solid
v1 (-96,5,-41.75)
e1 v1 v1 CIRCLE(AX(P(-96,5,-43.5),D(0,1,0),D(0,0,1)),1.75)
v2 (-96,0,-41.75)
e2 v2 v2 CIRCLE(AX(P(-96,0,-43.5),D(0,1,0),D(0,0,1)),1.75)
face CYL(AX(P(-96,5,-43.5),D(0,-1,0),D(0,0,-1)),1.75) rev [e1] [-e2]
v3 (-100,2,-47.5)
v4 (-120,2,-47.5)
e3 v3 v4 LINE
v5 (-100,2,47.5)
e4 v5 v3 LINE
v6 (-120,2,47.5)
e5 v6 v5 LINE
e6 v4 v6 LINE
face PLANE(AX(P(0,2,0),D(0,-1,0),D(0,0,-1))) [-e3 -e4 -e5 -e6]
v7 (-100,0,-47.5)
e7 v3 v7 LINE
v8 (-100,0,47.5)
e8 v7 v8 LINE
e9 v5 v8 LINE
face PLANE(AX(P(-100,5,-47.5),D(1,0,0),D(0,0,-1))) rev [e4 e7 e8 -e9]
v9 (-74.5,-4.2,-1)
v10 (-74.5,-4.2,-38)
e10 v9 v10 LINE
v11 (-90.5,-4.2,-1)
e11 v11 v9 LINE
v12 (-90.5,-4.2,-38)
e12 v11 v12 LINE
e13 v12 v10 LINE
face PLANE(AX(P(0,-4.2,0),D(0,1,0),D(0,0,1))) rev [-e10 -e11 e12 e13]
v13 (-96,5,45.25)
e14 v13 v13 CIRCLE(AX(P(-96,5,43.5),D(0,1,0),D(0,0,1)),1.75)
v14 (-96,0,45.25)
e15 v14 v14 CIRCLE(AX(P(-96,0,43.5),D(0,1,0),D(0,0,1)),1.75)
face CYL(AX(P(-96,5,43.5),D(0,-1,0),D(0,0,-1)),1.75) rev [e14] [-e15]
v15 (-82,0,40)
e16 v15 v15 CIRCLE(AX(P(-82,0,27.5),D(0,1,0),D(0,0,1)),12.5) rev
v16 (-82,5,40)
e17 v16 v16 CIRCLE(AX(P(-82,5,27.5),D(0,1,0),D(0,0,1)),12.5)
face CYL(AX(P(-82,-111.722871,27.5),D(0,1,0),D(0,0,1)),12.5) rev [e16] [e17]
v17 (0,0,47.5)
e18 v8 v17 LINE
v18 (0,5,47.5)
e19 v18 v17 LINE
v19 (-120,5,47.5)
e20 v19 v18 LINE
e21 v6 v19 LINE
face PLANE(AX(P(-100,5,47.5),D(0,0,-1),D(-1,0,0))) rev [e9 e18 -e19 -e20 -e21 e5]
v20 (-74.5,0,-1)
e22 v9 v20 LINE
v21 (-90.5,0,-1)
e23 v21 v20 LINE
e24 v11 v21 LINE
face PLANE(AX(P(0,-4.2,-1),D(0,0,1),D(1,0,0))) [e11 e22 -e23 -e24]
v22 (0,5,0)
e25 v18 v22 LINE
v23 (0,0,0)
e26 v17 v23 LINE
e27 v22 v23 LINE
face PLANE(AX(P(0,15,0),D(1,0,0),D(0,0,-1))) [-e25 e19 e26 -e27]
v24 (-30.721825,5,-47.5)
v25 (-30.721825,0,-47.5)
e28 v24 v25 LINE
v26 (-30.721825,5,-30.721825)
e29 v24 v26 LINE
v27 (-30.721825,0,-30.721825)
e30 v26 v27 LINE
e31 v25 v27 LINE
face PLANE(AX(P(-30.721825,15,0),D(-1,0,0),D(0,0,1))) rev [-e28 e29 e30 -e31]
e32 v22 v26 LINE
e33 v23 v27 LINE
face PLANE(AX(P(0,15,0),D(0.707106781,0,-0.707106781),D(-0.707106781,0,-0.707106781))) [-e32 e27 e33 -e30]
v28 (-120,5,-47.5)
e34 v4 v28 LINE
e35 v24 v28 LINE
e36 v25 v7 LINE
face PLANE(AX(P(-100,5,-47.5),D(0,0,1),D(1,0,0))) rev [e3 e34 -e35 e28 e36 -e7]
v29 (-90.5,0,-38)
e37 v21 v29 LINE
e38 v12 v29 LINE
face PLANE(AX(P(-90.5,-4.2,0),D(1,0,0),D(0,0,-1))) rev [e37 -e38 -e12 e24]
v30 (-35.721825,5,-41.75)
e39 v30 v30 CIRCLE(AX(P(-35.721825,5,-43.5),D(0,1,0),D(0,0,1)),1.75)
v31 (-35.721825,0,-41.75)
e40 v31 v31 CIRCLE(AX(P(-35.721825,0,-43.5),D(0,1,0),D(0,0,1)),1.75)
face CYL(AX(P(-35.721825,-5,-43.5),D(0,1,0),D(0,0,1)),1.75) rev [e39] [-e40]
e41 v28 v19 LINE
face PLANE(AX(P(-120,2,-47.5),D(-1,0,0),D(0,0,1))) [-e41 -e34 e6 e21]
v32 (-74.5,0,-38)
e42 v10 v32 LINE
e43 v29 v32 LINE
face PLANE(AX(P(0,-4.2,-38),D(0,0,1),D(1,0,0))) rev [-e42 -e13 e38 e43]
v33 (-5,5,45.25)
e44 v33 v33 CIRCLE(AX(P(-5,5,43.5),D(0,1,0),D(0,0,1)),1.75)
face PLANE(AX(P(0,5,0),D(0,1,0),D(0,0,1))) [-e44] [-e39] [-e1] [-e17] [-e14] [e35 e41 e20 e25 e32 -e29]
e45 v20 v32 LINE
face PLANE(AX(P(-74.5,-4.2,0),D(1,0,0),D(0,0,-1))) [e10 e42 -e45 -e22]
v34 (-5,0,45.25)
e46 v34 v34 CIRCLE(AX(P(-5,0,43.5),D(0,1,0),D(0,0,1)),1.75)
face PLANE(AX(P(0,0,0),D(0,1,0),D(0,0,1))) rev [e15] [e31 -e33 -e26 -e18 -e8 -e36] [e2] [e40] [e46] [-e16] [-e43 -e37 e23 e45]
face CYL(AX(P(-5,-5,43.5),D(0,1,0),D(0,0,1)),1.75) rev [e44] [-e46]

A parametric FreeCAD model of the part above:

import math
import FreeCAD as App
import Part
import Sketcher

V = App.Vector
Q = App.Units.Quantity


def add_polygon(sketch, points):
    """Adds a closed chain of lines whose ends are joined by coincident constraints."""
    first, n = sketch.GeometryCount, len(points)
    for a, b in zip(points, points[1:] + points[:1]):
        sketch.addGeometry(Part.LineSegment(App.Vector(*a, 0), App.Vector(*b, 0)), False)
    for i in range(n):
        sketch.addConstraint(Sketcher.Constraint("Coincident", first + i, 2, first + (i + 1) % n, 1))

doc = App.newDocument("Part")
params = doc.addObject("Spreadsheet::Sheet", "Params")
for row, (alias, value) in enumerate([
    ("sketch1_diameter", "3.5 mm"),
    ("sketch1_width", "200 mm"),
    ("sketch1_height", "95 mm"),
    ("pad1_length", "5 mm"),
    ("sketch2_diameter", "25 mm"),
    ("sketch2_radius", "15 mm"),
    ("pocket1_length", "5 mm"),
    ("sketch3_width", "16 mm"),
    ("sketch3_height", "37 mm"),
    ("pad2_length", "4.2 mm"),
    ("sketch4_width", "20 mm"),
    ("sketch4_height", "95 mm"),
    ("pad3_length", "3 mm"),
    ("sketch5_radius", "18 mm"),
    ("sketch5_radius2", "15 mm"),
    ("pad4_length", "4 mm"),
    ("sketch6_diameter", "26 mm"),
    ("sketch6_radius", "15 mm"),
    ("pad5_length", "2 mm"),
    ("sketch7_length", "11 mm"),
    ("pocket2_length", "5 mm"),
    ("sketch8_diameter", "3.5 mm"),
    ("pocket3_length", "10 mm"),
    ("sketch9_diameter", "3.5 mm"),
    ("sketch9_width", "120 mm"),
    ("sketch9_height", "95 mm"),
    ("sketch9_height2", "47.5 mm"),
], start=1):
    params.set(f"A{row}", alias)
    params.set(f"B{row}", "=" + value)
    params.setAlias(f"B{row}", alias)

body = doc.addObject("PartDesign::Body", "Body")

sketch1 = doc.addObject("Sketcher::SketchObject", "Sketch")
body.addObject(sketch1)
sketch1.AttachmentSupport = (doc.XZ_Plane, [""])
sketch1.MapMode = "FlatFace"
add_polygon(sketch1, [(-100, -47.5), (-100, 47.5), (100, 47.5), (100, -47.5)])
sketch1.addGeometry(Part.Circle(V(-96, 43.5, 0), V(0, 0, 1), 1.8), False)
sketch1.addGeometry(Part.Circle(V(97, 43.5, 0), V(0, 0, 1), 1.8), False)
sketch1.addGeometry(Part.Circle(V(-96, -43.5, 0), V(0, 0, 1), 1.8), False)
sketch1.addGeometry(Part.Circle(V(97, -43.5, 0), V(0, 0, 1), 1.8), False)
sketch1.addConstraint([
    Sketcher.Constraint("Vertical", 0),
    Sketcher.Constraint("Horizontal", 1),
    Sketcher.Constraint("Vertical", 2),
    Sketcher.Constraint("Horizontal", 3),
    Sketcher.Constraint("Equal", 4, 5),
    Sketcher.Constraint("Equal", 5, 6),
    Sketcher.Constraint("Equal", 6, 7),
    Sketcher.Constraint("Symmetric", 0, 2, 2, 2, -1, 1),
    Sketcher.Constraint("Symmetric", 4, 3, 6, 3, -1),
    Sketcher.Constraint("Symmetric", 5, 3, 7, 3, -1),
    Sketcher.Constraint("Horizontal", 4, 3, 5, 3),
    Sketcher.Constraint("Diameter", 4, Q("3.5 mm")),
    Sketcher.Constraint("DistanceX", 1, 1, 1, 2, Q("200 mm")),
    Sketcher.Constraint("DistanceY", 0, 1, 0, 2, Q("95 mm")),
    Sketcher.Constraint("DistanceX", 4, 3, -1, 1, Q("96 mm")),
    Sketcher.Constraint("DistanceX", -1, 1, 5, 3, Q("97 mm")),
    Sketcher.Constraint("DistanceY", 6, 3, 4, 3, Q("87 mm")),
])
sketch1.setExpression("Constraints[15]", "Params.sketch1_diameter")
sketch1.setExpression("Constraints[16]", "Params.sketch1_width")
sketch1.setExpression("Constraints[17]", "Params.sketch1_height")
pad1 = doc.addObject("PartDesign::Pad", "Pad")
body.addObject(pad1)
pad1.Profile = sketch1
pad1.setExpression("Length", "Params.pad1_length")
pad1.Reversed = True

sketch2 = doc.addObject("Sketcher::SketchObject", "Sketch001")
body.addObject(sketch2)
sketch2.AttachmentSupport = (doc.XZ_Plane, [""])
sketch2.MapMode = "FlatFace"
sketch2.AttachmentOffset = App.Placement(V(0, 0, -5), App.Rotation())
sketch2.addGeometry([
    Part.ArcOfCircle(Part.Circle(V(34, 0, 0), V(0, 0, 1), 15), math.radians(135), math.radians(225)),
    Part.LineSegment(V(23, 11, 0), V(47, 35, 0)),
    Part.ArcOfCircle(Part.Circle(V(58, 24, 0), V(0, 0, 1), 15), math.radians(45), math.radians(135)),
    Part.LineSegment(V(69, 35, 0), V(93, 11, 0)),
    Part.ArcOfCircle(Part.Circle(V(82, 0, 0), V(0, 0, 1), 15), math.radians(-45), math.radians(45)),
    Part.LineSegment(V(93, -11, 0), V(69, -35, 0)),
    Part.ArcOfCircle(Part.Circle(V(58, -24, 0), V(0, 0, 1), 15), math.radians(-135), math.radians(-45)),
    Part.LineSegment(V(47, -35, 0), V(23, -11, 0)),
    Part.Circle(V(-82, 28, 0), V(0, 0, 1), 12),
], False)
sketch2.addConstraint([
    Sketcher.Constraint("Tangent", 0, 1, 1, 1),
    Sketcher.Constraint("Tangent", 1, 2, 2, 2),
    Sketcher.Constraint("Tangent", 2, 1, 3, 1),
    Sketcher.Constraint("Tangent", 3, 2, 4, 2),
    Sketcher.Constraint("Tangent", 4, 1, 5, 1),
    Sketcher.Constraint("Tangent", 5, 2, 6, 2),
    Sketcher.Constraint("Tangent", 6, 1, 7, 1),
    Sketcher.Constraint("Tangent", 7, 2, 0, 2),
    Sketcher.Constraint("Equal", 0, 2),
    Sketcher.Constraint("Equal", 2, 4),
    Sketcher.Constraint("Equal", 4, 6),
    Sketcher.Constraint("Symmetric", 2, 3, 6, 3, -1),
    Sketcher.Constraint("PointOnObject", 0, 3, -1),
    Sketcher.Constraint("PointOnObject", 4, 3, -1),
    Sketcher.Constraint("Perpendicular", 1, 3),
    Sketcher.Constraint("Perpendicular", 3, 5),
    Sketcher.Constraint("Diameter", 8, Q("25 mm")),
    Sketcher.Constraint("Radius", 0, Q("15 mm")),
    Sketcher.Constraint("DistanceX", -1, 1, 2, 3, Q("58 mm")),
    Sketcher.Constraint("DistanceX", 8, 3, -1, 1, Q("82 mm")),
    Sketcher.Constraint("DistanceX", 0, 3, 4, 3, Q("49 mm")),
    Sketcher.Constraint("DistanceY", 2, 3, 8, 3, Q("3 mm")),
])
sketch2.setExpression("Constraints[16]", "Params.sketch2_diameter")
sketch2.setExpression("Constraints[17]", "Params.sketch2_radius")
pocket1 = doc.addObject("PartDesign::Pocket", "Pocket")
body.addObject(pocket1)
pocket1.Profile = sketch2
pocket1.setExpression("Length", "Params.pocket1_length")
pocket1.Reversed = True

sketch3 = doc.addObject("Sketcher::SketchObject", "Sketch002")
body.addObject(sketch3)
sketch3.AttachmentSupport = (doc.XZ_Plane, [""])
sketch3.MapMode = "FlatFace"
add_polygon(sketch3, [(-90, -1), (-90, -38), (-74, -38), (-74, -1)])
sketch3.addConstraint([
    Sketcher.Constraint("Vertical", 0),
    Sketcher.Constraint("Horizontal", 1),
    Sketcher.Constraint("Vertical", 2),
    Sketcher.Constraint("Horizontal", 3),
    Sketcher.Constraint("DistanceX", 1, 1, 1, 2, Q("16 mm")),
    Sketcher.Constraint("DistanceY", 0, 2, 0, 1, Q("37 mm")),
    Sketcher.Constraint("DistanceY", 0, 2, -1, 1, Q("38 mm")),
    Sketcher.Constraint("DistanceX", 0, 2, -1, 1, Q("90.5 mm")),
])
sketch3.setExpression("Constraints[8]", "Params.sketch3_width")
sketch3.setExpression("Constraints[9]", "Params.sketch3_height")
pad2 = doc.addObject("PartDesign::Pad", "Pad001")
body.addObject(pad2)
pad2.Profile = sketch3
pad2.setExpression("Length", "Params.pad2_length")

sketch4 = doc.addObject("Sketcher::SketchObject", "Sketch003")
body.addObject(sketch4)
sketch4.AttachmentSupport = (doc.XZ_Plane, [""])
sketch4.MapMode = "FlatFace"
sketch4.AttachmentOffset = App.Placement(V(0, 0, -5), App.Rotation())
add_polygon(sketch4, [(-120, -48), (-120, 48), (-100, 48), (-100, -48)])
add_polygon(sketch4, [(100, -48), (100, 48), (120, 48), (120, -48)])
sketch4.addConstraint([
    Sketcher.Constraint("Vertical", 0),
    Sketcher.Constraint("Horizontal", 1),
    Sketcher.Constraint("Vertical", 2),
    Sketcher.Constraint("Horizontal", 3),
    Sketcher.Constraint("Vertical", 4),
    Sketcher.Constraint("Horizontal", 5),
    Sketcher.Constraint("Vertical", 6),
    Sketcher.Constraint("Horizontal", 7),
    Sketcher.Constraint("Symmetric", 2, 2, 4, 2, -1, 1),
    Sketcher.Constraint("Symmetric", 0, 2, 6, 2, -1, 1),
    Sketcher.Constraint("Horizontal", 1, 2, 4, 2),
    Sketcher.Constraint("DistanceX", 1, 1, 1, 2, Q("20 mm")),
    Sketcher.Constraint("DistanceY", 0, 1, 0, 2, Q("95 mm")),
    Sketcher.Constraint("DistanceX", 0, 2, -1, 1, Q("120 mm")),
])
sketch4.setExpression("Constraints[19]", "Params.sketch4_width")
sketch4.setExpression("Constraints[20]", "Params.sketch4_height")
pad3 = doc.addObject("PartDesign::Pad", "Pad002")
body.addObject(pad3)
pad3.Profile = sketch4
pad3.setExpression("Length", "Params.pad3_length")

sketch5 = doc.addObject("Sketcher::SketchObject", "Sketch004")
body.addObject(sketch5)
sketch5.AttachmentSupport = (doc.XZ_Plane, [""])
sketch5.MapMode = "FlatFace"
sketch5.AttachmentOffset = App.Placement(V(0, 0, -9), App.Rotation())
sketch5.addGeometry([
    Part.LineSegment(V(71, 37, 0), V(95, 13, 0)),
    Part.ArcOfCircle(Part.Circle(V(83, 0, 0), V(0, 0, 1), 18), math.radians(-45), math.radians(45)),
    Part.LineSegment(V(95, -13, 0), V(71, -37, 0)),
    Part.ArcOfCircle(Part.Circle(V(58, -25, 0), V(0, 0, 1), 18), math.radians(-135), math.radians(-45)),
    Part.LineSegment(V(45, -37, 0), V(21, -13, 0)),
    Part.ArcOfCircle(Part.Circle(V(33, 0, 0), V(0, 0, 1), 18), math.radians(135), math.radians(225)),
    Part.LineSegment(V(21, 13, 0), V(45, 37, 0)),
    Part.ArcOfCircle(Part.Circle(V(58, 25, 0), V(0, 0, 1), 18), math.radians(45), math.radians(135)),
    Part.LineSegment(V(47, 35, 0), V(23, 11, 0)),
    Part.ArcOfCircle(Part.Circle(V(34, 0, 0), V(0, 0, 1), 15), math.radians(135), math.radians(225)),
    Part.LineSegment(V(23, -11, 0), V(47, -35, 0)),
    Part.ArcOfCircle(Part.Circle(V(58, -24, 0), V(0, 0, 1), 15), math.radians(-135), math.radians(-45)),
    Part.LineSegment(V(69, -35, 0), V(93, -11, 0)),
    Part.ArcOfCircle(Part.Circle(V(82, 0, 0), V(0, 0, 1), 15), math.radians(-45), math.radians(45)),
    Part.LineSegment(V(93, 11, 0), V(69, 35, 0)),
    Part.ArcOfCircle(Part.Circle(V(58, 24, 0), V(0, 0, 1), 15), math.radians(45), math.radians(135)),
], False)
sketch5.addConstraint([
    Sketcher.Constraint("Tangent", 0, 2, 1, 2),
    Sketcher.Constraint("Tangent", 1, 1, 2, 1),
    Sketcher.Constraint("Tangent", 2, 2, 3, 2),
    Sketcher.Constraint("Tangent", 3, 1, 4, 1),
    Sketcher.Constraint("Tangent", 4, 2, 5, 2),
    Sketcher.Constraint("Tangent", 5, 1, 6, 1),
    Sketcher.Constraint("Tangent", 6, 2, 7, 2),
    Sketcher.Constraint("Tangent", 7, 1, 0, 1),
    Sketcher.Constraint("Tangent", 8, 2, 9, 1),
    Sketcher.Constraint("Tangent", 9, 2, 10, 1),
    Sketcher.Constraint("Tangent", 10, 2, 11, 1),
    Sketcher.Constraint("Tangent", 11, 2, 12, 1),
    Sketcher.Constraint("Tangent", 12, 2, 13, 1),
    Sketcher.Constraint("Tangent", 13, 2, 14, 1),
    Sketcher.Constraint("Tangent", 14, 2, 15, 1),
    Sketcher.Constraint("Tangent", 15, 2, 8, 1),
    Sketcher.Constraint("Coincident", 9, 3, 5, 3),
    Sketcher.Constraint("Coincident", 11, 3, 3, 3),
    Sketcher.Constraint("Coincident", 13, 3, 1, 3),
    Sketcher.Constraint("Coincident", 15, 3, 7, 3),
    Sketcher.Constraint("Equal", 1, 3),
    Sketcher.Constraint("Equal", 3, 5),
    Sketcher.Constraint("Equal", 5, 7),
    Sketcher.Constraint("Equal", 9, 11),
    Sketcher.Constraint("Equal", 11, 13),
    Sketcher.Constraint("Equal", 13, 15),
    Sketcher.Constraint("Symmetric", 3, 3, 7, 3, -1),
    Sketcher.Constraint("PointOnObject", 1, 3, -1),
    Sketcher.Constraint("PointOnObject", 5, 3, -1),
    Sketcher.Constraint("Perpendicular", 0, 2),
    Sketcher.Constraint("Perpendicular", 2, 4),
    Sketcher.Constraint("Radius", 1, Q("18 mm")),
    Sketcher.Constraint("Radius", 9, Q("15 mm")),
    Sketcher.Constraint("DistanceX", -1, 1, 3, 3, Q("58 mm")),
    Sketcher.Constraint("DistanceX", 5, 3, 1, 3, Q("49 mm")),
])
sketch5.setExpression("Constraints[31]", "Params.sketch5_radius")
sketch5.setExpression("Constraints[32]", "Params.sketch5_radius2")
pad4 = doc.addObject("PartDesign::Pad", "Pad003")
body.addObject(pad4)
pad4.Profile = sketch5
pad4.setExpression("Length", "Params.pad4_length")

sketch6 = doc.addObject("Sketcher::SketchObject", "Sketch005")
body.addObject(sketch6)
sketch6.AttachmentSupport = (doc.XZ_Plane, [""])
sketch6.MapMode = "FlatFace"
sketch6.AttachmentOffset = App.Placement(V(0, 0, -9), App.Rotation())
sketch6.addGeometry([
    Part.LineSegment(V(23, 11, 0), V(47, 35, 0)),
    Part.ArcOfCircle(Part.Circle(V(58, 24, 0), V(0, 0, 1), 15), math.radians(45), math.radians(135)),
    Part.LineSegment(V(69, 35, 0), V(93, 11, 0)),
    Part.ArcOfCircle(Part.Circle(V(82, 0, 0), V(0, 0, 1), 15), math.radians(-45), math.radians(45)),
    Part.LineSegment(V(93, -11, 0), V(69, -35, 0)),
    Part.ArcOfCircle(Part.Circle(V(58, -24, 0), V(0, 0, 1), 15), math.radians(-135), math.radians(-45)),
    Part.LineSegment(V(47, -35, 0), V(23, -11, 0)),
    Part.ArcOfCircle(Part.Circle(V(34, 0, 0), V(0, 0, 1), 15), math.radians(135), math.radians(225)),
    Part.Circle(V(58, 24, 0), V(0, 0, 1), 13),
    Part.Circle(V(34, 0, 0), V(0, 0, 1), 13),
    Part.Circle(V(82, 0, 0), V(0, 0, 1), 13),
    Part.Circle(V(58, -24, 0), V(0, 0, 1), 13),
], False)
sketch6.addConstraint([
    Sketcher.Constraint("Tangent", 0, 2, 1, 2),
    Sketcher.Constraint("Tangent", 1, 1, 2, 1),
    Sketcher.Constraint("Tangent", 2, 2, 3, 2),
    Sketcher.Constraint("Tangent", 3, 1, 4, 1),
    Sketcher.Constraint("Tangent", 4, 2, 5, 2),
    Sketcher.Constraint("Tangent", 5, 1, 6, 1),
    Sketcher.Constraint("Tangent", 6, 2, 7, 2),
    Sketcher.Constraint("Tangent", 7, 1, 0, 1),
    Sketcher.Constraint("Coincident", 8, 3, 1, 3),
    Sketcher.Constraint("Coincident", 9, 3, 7, 3),
    Sketcher.Constraint("Coincident", 10, 3, 3, 3),
    Sketcher.Constraint("Coincident", 11, 3, 5, 3),
    Sketcher.Constraint("Equal", 1, 3),
    Sketcher.Constraint("Equal", 3, 5),
    Sketcher.Constraint("Equal", 5, 7),
    Sketcher.Constraint("Equal", 8, 9),
    Sketcher.Constraint("Equal", 9, 10),
    Sketcher.Constraint("Equal", 10, 11),
    Sketcher.Constraint("Symmetric", 1, 3, 5, 3, -1),
    Sketcher.Constraint("PointOnObject", 3, 3, -1),
    Sketcher.Constraint("PointOnObject", 7, 3, -1),
    Sketcher.Constraint("Perpendicular", 0, 2),
    Sketcher.Constraint("Perpendicular", 2, 4),
    Sketcher.Constraint("Diameter", 8, Q("26 mm")),
    Sketcher.Constraint("Radius", 1, Q("15 mm")),
    Sketcher.Constraint("DistanceX", -1, 1, 1, 3, Q("58 mm")),
    Sketcher.Constraint("DistanceY", 5, 3, 1, 3, Q("49 mm")),
])
sketch6.setExpression("Constraints[23]", "Params.sketch6_diameter")
sketch6.setExpression("Constraints[24]", "Params.sketch6_radius")
pad5 = doc.addObject("PartDesign::Pad", "Pad004")
body.addObject(pad5)
pad5.Profile = sketch6
pad5.setExpression("Length", "Params.pad5_length")

sketch7 = doc.addObject("Sketcher::SketchObject", "Sketch006")
body.addObject(sketch7)
sketch7.AttachmentSupport = (doc.XZ_Plane, [""])
sketch7.MapMode = "FlatFace"
sketch7.AttachmentOffset = App.Placement(V(0, 0, -5), App.Rotation())
add_polygon(sketch7, [(0, -38), (-8, -31), (0, -23), (8, -31)])
sketch7.addConstraint([
    Sketcher.Constraint("Symmetric", 0, 2, 2, 2, -2),
    Sketcher.Constraint("PointOnObject", 1, 2, -2),
    Sketcher.Constraint("PointOnObject", 3, 2, -2),
    Sketcher.Constraint("Perpendicular", 0, 1),
    Sketcher.Constraint("Perpendicular", 1, 2),
    Sketcher.Constraint("Distance", 0, Q("11 mm")),
    Sketcher.Constraint("DistanceY", 3, 2, -1, 1, Q("38.5 mm")),
])
sketch7.setExpression("Constraints[9]", "Params.sketch7_length")
pocket2 = doc.addObject("PartDesign::Pocket", "Pocket001")
body.addObject(pocket2)
pocket2.Profile = sketch7
pocket2.setExpression("Length", "Params.pocket2_length")
pocket2.Reversed = True

sketch8 = doc.addObject("Sketcher::SketchObject", "Sketch007")
body.addObject(sketch8)
sketch8.AttachmentSupport = (doc.XZ_Plane, [""])
sketch8.MapMode = "FlatFace"
sketch8.AttachmentOffset = App.Placement(V(0, 0, -5), App.Rotation())
sketch8.addGeometry([
    Part.Circle(V(-35.7, -43.5, 0), V(0, 0, 1), 1.8),
    Part.Circle(V(-25.7, -43.5, 0), V(0, 0, 1), 1.8),
    Part.Circle(V(5, 43.5, 0), V(0, 0, 1), 1.8),
    Part.Circle(V(-5, 43.5, 0), V(0, 0, 1), 1.8),
], False)
sketch8.addConstraint([
    Sketcher.Constraint("Equal", 0, 1),
    Sketcher.Constraint("Equal", 1, 2),
    Sketcher.Constraint("Equal", 2, 3),
    Sketcher.Constraint("Symmetric", 2, 3, 3, 3, -2),
    Sketcher.Constraint("Horizontal", 0, 3, 1, 3),
    Sketcher.Constraint("Diameter", 0, Q("3.5 mm")),
    Sketcher.Constraint("DistanceX", -1, 1, 2, 3, Q("5 mm")),
    Sketcher.Constraint("DistanceX", 0, 3, 1, 3, Q("10 mm")),
    Sketcher.Constraint("DistanceY", 1, 3, 2, 3, Q("87 mm")),
    Sketcher.Constraint("DistanceY", 0, 3, -1, 1, Q("43.5 mm")),
    Sketcher.Constraint("DistanceX", 0, 3, -1, 1, Q("35.721825 mm")),
])
sketch8.setExpression("Constraints[5]", "Params.sketch8_diameter")
pocket3 = doc.addObject("PartDesign::Pocket", "Pocket002")
body.addObject(pocket3)
pocket3.Profile = sketch8
pocket3.setExpression("Length", "Params.pocket3_length")
pocket3.Reversed = True

sketch9 = doc.addObject("Sketcher::SketchObject", "Sketch008")
body.addObject(sketch9)
sketch9.AttachmentSupport = (doc.XZ_Plane, [""])
sketch9.MapMode = "FlatFace"
sketch9.AttachmentOffset = App.Placement(V(0, 0, -5), App.Rotation())
add_polygon(sketch9, [(-30.7, -47.5), (-30.7, -30.7), (0, 0), (0, 47.5), (120, 47.5), (120, -47.5)])
sketch9.addGeometry(Part.Circle(V(5, 43.5, 0), V(0, 0, 1), 1.8), False)
sketch9.addGeometry(Part.Circle(V(97, 43.5, 0), V(0, 0, 1), 1.8), False)
sketch9.addGeometry(Part.Circle(V(-25.7, -43.5, 0), V(0, 0, 1), 1.8), False)
sketch9.addGeometry(Part.Circle(V(97, -43.5, 0), V(0, 0, 1), 1.8), False)
sketch9.addConstraint([
    Sketcher.Constraint("Vertical", 0),
    Sketcher.Constraint("Vertical", 2),
    Sketcher.Constraint("Horizontal", 3),
    Sketcher.Constraint("Vertical", 4),
    Sketcher.Constraint("Horizontal", 5),
    Sketcher.Constraint("Coincident", 1, 2, -1, 1),
    Sketcher.Constraint("Equal", 6, 7),
    Sketcher.Constraint("Equal", 7, 8),
    Sketcher.Constraint("Equal", 8, 9),
    Sketcher.Constraint("Symmetric", 7, 3, 9, 3, -1),
    Sketcher.Constraint("Horizontal", 6, 3, 7, 3),
    Sketcher.Constraint("Horizontal", 8, 3, 9, 3),
    Sketcher.Constraint("Diameter", 6, Q("3.5 mm")),
    Sketcher.Constraint("DistanceX", 3, 1, 3, 2, Q("120 mm")),
    Sketcher.Constraint("DistanceY", 4, 2, 4, 1, Q("95 mm")),
    Sketcher.Constraint("Angle", 1, Q("45 deg")),
    Sketcher.Constraint("DistanceY", 2, 1, 2, 2, Q("47.5 mm")),
    Sketcher.Constraint("DistanceX", -1, 1, 6, 3, Q("5 mm")),
    Sketcher.Constraint("DistanceX", -1, 1, 7, 3, Q("97 mm")),
    Sketcher.Constraint("DistanceY", 8, 3, 6, 3, Q("87 mm")),
    Sketcher.Constraint("DistanceX", 0, 2, 8, 3, Q("5 mm")),
    Sketcher.Constraint("DistanceX", 5, 2, 5, 1, Q("150.721825 mm")),
])
sketch9.setExpression("Constraints[18]", "Params.sketch9_diameter")
sketch9.setExpression("Constraints[19]", "Params.sketch9_width")
sketch9.setExpression("Constraints[20]", "Params.sketch9_height")
sketch9.setExpression("Constraints[22]", "Params.sketch9_height2")
pocket4 = doc.addObject("PartDesign::Pocket", "Pocket003")
body.addObject(pocket4)
pocket4.Profile = sketch9
pocket4.Type = "ThroughAll"
pocket4.Midplane = True

doc.recompute()
